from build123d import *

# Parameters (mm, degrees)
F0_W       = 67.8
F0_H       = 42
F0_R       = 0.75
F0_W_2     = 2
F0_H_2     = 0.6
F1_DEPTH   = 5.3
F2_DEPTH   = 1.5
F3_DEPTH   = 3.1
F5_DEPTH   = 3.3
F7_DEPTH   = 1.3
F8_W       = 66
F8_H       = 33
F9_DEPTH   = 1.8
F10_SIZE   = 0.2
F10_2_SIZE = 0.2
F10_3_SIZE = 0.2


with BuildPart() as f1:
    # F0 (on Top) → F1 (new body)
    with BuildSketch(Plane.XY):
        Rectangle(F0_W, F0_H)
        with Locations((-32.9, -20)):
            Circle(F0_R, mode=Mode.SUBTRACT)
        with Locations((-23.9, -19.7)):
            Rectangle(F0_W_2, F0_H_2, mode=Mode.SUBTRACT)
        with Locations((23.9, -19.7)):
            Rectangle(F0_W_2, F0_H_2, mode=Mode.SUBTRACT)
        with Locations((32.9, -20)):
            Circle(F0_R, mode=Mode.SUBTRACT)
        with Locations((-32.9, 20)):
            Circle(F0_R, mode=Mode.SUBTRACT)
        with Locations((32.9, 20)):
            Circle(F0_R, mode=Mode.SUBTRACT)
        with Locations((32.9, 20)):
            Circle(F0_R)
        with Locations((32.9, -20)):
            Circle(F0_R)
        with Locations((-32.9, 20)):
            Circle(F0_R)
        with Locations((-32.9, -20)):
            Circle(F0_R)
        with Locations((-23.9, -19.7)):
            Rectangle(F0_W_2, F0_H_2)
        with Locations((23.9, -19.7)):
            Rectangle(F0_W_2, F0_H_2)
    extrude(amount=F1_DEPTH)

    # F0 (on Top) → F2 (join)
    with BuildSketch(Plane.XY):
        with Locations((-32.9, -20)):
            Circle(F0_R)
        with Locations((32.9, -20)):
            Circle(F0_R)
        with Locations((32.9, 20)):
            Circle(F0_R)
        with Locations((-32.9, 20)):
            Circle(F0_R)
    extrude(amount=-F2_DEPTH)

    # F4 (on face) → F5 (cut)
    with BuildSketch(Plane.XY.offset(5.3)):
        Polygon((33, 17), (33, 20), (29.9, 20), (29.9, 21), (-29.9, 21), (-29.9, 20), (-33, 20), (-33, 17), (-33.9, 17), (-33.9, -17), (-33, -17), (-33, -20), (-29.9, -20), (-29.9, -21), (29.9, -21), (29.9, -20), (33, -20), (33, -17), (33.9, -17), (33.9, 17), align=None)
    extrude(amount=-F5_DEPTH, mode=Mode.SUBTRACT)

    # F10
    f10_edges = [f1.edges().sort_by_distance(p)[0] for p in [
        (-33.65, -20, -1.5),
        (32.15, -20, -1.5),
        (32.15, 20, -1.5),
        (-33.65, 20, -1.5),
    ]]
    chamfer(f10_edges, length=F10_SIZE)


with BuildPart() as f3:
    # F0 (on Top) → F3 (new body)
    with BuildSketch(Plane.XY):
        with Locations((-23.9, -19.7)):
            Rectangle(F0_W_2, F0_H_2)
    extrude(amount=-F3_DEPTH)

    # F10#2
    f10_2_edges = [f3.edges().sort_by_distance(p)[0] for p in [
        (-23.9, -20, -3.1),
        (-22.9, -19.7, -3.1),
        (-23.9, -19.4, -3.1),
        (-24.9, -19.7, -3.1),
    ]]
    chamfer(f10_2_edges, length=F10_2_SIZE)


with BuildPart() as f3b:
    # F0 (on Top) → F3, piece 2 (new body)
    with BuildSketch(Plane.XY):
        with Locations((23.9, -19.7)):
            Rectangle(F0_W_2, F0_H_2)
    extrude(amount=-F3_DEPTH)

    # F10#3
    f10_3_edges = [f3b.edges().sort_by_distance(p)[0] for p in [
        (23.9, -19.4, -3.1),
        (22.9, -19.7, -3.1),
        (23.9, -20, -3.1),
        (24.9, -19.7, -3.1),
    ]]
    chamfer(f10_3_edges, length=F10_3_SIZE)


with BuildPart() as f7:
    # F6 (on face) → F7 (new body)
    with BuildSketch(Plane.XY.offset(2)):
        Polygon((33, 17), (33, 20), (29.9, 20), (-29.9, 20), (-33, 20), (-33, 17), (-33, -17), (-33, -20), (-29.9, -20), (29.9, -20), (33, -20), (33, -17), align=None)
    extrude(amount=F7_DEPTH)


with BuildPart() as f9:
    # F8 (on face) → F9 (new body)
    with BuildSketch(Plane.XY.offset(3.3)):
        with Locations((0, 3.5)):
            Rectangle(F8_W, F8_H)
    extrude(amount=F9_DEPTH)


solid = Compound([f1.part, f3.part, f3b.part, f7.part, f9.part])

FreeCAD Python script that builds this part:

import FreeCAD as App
import Part
import Sketcher
Q = App.Units.Quantity


def edges_at(feature, points):
    """Names of the edges that pass closest to the given points."""
    edges = feature.Shape.Edges
    near = lambda p: min(range(len(edges)), key=lambda i: edges[i].distToShape(Part.Vertex(*p))[0])
    return sorted({f"Edge{near(p) + 1}" for p in points})


def add_polygon(sketch, points):
    """Adds a closed chain of lines whose ends are joined by coincident constraints."""
    first, n = sketch.GeometryCount, len(points)
    for a, b in zip(points, points[1:] + points[:1]):
        sketch.addGeometry(Part.LineSegment(App.Vector(*a, 0), App.Vector(*b, 0)), False)
    for i in range(n):
        sketch.addConstraint(Sketcher.Constraint("Coincident", first + i, 2, first + (i + 1) % n, 1))

doc = App.newDocument("Part")
body = doc.addObject("PartDesign::Body", "Body")

# Sketch on XY plane
sketch1 = body.newObject("Sketcher::SketchObject", "Sketch")
sketch1.AttachmentSupport = (doc.getObject("XY_Plane"), [""])
sketch1.MapMode = "FlatFace"
add_polygon(sketch1, [(-33.9, 21), (-33.9, -21), (33.9, -21), (33.9, 21)])  # lines 0-3
sketch1.addConstraint([
    Sketcher.Constraint("Vertical", 0),
    Sketcher.Constraint("Horizontal", 1),
    Sketcher.Constraint("Vertical", 2),
    Sketcher.Constraint("Horizontal", 3),
    Sketcher.Constraint("Symmetric", 0, 2, 2, 2, -1, 1),
    Sketcher.Constraint("DistanceY", 0, 2, 0, 1, Q("42 mm")),
    Sketcher.Constraint("DistanceX", 1, 1, 1, 2, Q("67.8 mm")),
])
pad1 = body.newObject("PartDesign::Pad", "Pad")
pad1.Profile = sketch1
pad1.Length = 5.3

# Sketch on XY plane
sketch2 = body.newObject("Sketcher::SketchObject", "Sketch001")
sketch2.AttachmentSupport = (doc.getObject("XY_Plane"), [""])
sketch2.MapMode = "FlatFace"
sketch2.addGeometry([
    Part.Circle(App.Vector(-32.9, -20, 0), App.Vector(0, 0, 1), 0.75),
    Part.Circle(App.Vector(32.9, -20, 0), App.Vector(0, 0, 1), 0.75),
    Part.Circle(App.Vector(32.9, 20, 0), App.Vector(0, 0, 1), 0.75),
    Part.Circle(App.Vector(-32.9, 20, 0), App.Vector(0, 0, 1), 0.75),
], False)
sketch2.addConstraint([
    Sketcher.Constraint("Equal", 0, 1),
    Sketcher.Constraint("Equal", 1, 2),
    Sketcher.Constraint("Equal", 2, 3),
    Sketcher.Constraint("Symmetric", 0, 3, 2, 3, -1, 1),
    Sketcher.Constraint("Symmetric", 1, 3, 3, 3, -1, 1),
    Sketcher.Constraint("Symmetric", 0, 3, 1, 3, -2),
    Sketcher.Constraint("Diameter", 0, Q("1.5 mm")),
    Sketcher.Constraint("DistanceY", 0, 3, -1, 1, Q("20 mm")),
    Sketcher.Constraint("DistanceX", 0, 3, -1, 1, Q("32.9 mm")),
])
pad2 = body.newObject("PartDesign::Pad", "Pad001")
pad2.Profile = sketch2
pad2.Length = 1.5
pad2.Reversed = True

# Sketch on XY plane
sketch3 = body.newObject("Sketcher::SketchObject", "Sketch002")
sketch3.AttachmentSupport = (doc.getObject("XY_Plane"), [""])
sketch3.MapMode = "FlatFace"
sketch3.AttachmentOffset = App.Placement(App.Vector(0, 0, 5.3), App.Rotation())
add_polygon(sketch3, [(33, 17), (33, 20), (29.9, 20), (29.9, 21), (-29.9, 21), (-29.9, 20), (-33, 20), (-33, 17), (-33.9, 17), (-33.9, -17), (-33, -17), (-33, -20), (-29.9, -20), (-29.9, -21), (29.9, -21), (29.9, -20), (33, -20), (33, -17), (33.9, -17), (33.9, 17)])  # lines 0-19
sketch3.addConstraint([
    Sketcher.Constraint("Vertical", 0),
    Sketcher.Constraint("Horizontal", 1),
    Sketcher.Constraint("Vertical", 2),
    Sketcher.Constraint("Horizontal", 3),
    Sketcher.Constraint("Vertical", 4),
    Sketcher.Constraint("Horizontal", 5),
    Sketcher.Constraint("Vertical", 6),
    Sketcher.Constraint("Horizontal", 7),
    Sketcher.Constraint("Vertical", 8),
    Sketcher.Constraint("Horizontal", 9),
    Sketcher.Constraint("Vertical", 10),
    Sketcher.Constraint("Horizontal", 11),
    Sketcher.Constraint("Vertical", 12),
    Sketcher.Constraint("Horizontal", 13),
    Sketcher.Constraint("Vertical", 14),
    Sketcher.Constraint("Horizontal", 15),
    Sketcher.Constraint("Vertical", 16),
    Sketcher.Constraint("Horizontal", 17),
    Sketcher.Constraint("Vertical", 18),
    Sketcher.Constraint("Horizontal", 19),
    Sketcher.Constraint("Symmetric", 0, 2, 10, 2, -1, 1),
    Sketcher.Constraint("Symmetric", 2, 2, 12, 2, -1, 1),
    Sketcher.Constraint("Symmetric", 4, 2, 14, 2, -1, 1),
    Sketcher.Constraint("Symmetric", 6, 2, 16, 2, -1, 1),
    Sketcher.Constraint("Symmetric", 8, 2, 18, 2, -1, 1),
    Sketcher.Constraint("Symmetric", 1, 2, 4, 2, -2),
    Sketcher.Constraint("Symmetric", 9, 2, 16, 2, -2),
    Sketcher.Constraint("DistanceY", 0, 1, 0, 2, Q("3 mm")),
    Sketcher.Constraint("DistanceY", 2, 1, 2, 2, Q("1 mm")),
    Sketcher.Constraint("DistanceY", 8, 2, 8, 1, Q("34 mm")),
    Sketcher.Constraint("DistanceX", 1, 2, 1, 1, Q("3.1 mm")),
    Sketcher.Constraint("DistanceX", 3, 2, 3, 1, Q("59.8 mm")),
    Sketcher.Constraint("DistanceX", 7, 2, 7, 1, Q("0.9 mm")),
])
pocket1 = body.newObject("PartDesign::Pocket", "Pocket")
pocket1.Profile = sketch3
pocket1.Length = 3.3
doc.recompute()

chamfer = body.newObject("PartDesign::Chamfer", "Chamfer")
chamfer.Base = (pocket1, edges_at(pocket1, [
    (-33.65, -20, -1.5),
    (32.15, -20, -1.5),
    (32.15, 20, -1.5),
    (-33.65, 20, -1.5),
]))
chamfer.Size = 0.2
body2 = doc.addObject("PartDesign::Body", "Body001")

# Sketch on XY plane
sketch4 = body2.newObject("Sketcher::SketchObject", "Sketch003")
sketch4.AttachmentSupport = (doc.getObject("XY_Plane001"), [""])
sketch4.MapMode = "FlatFace"
add_polygon(sketch4, [(-24.9, -19.4), (-24.9, -20), (-22.9, -20), (-22.9, -19.4)])  # lines 0-3
sketch4.addConstraint([
    Sketcher.Constraint("Vertical", 0),
    Sketcher.Constraint("Horizontal", 1),
    Sketcher.Constraint("Vertical", 2),
    Sketcher.Constraint("Horizontal", 3),
    Sketcher.Constraint("DistanceX", 1, 1, 1, 2, Q("2 mm")),
    Sketcher.Constraint("DistanceY", 0, 2, 0, 1, Q("0.6 mm")),
    Sketcher.Constraint("DistanceY", 0, 2, -1, 1, Q("20 mm")),
    Sketcher.Constraint("DistanceX", 0, 2, -1, 1, Q("24.9 mm")),
])
pad3 = body2.newObject("PartDesign::Pad", "Pad002")
pad3.Profile = sketch4
pad3.Length = 3.1
pad3.Reversed = True
doc.recompute()

chamfer2 = body2.newObject("PartDesign::Chamfer", "Chamfer001")
chamfer2.Base = (pad3, edges_at(pad3, [
    (-23.9, -20, -3.1),
    (-22.9, -19.7, -3.1),
    (-23.9, -19.4, -3.1),
    (-24.9, -19.7, -3.1),
]))
chamfer2.Size = 0.2
body3 = doc.addObject("PartDesign::Body", "Body002")

# Sketch on XY plane
sketch5 = body3.newObject("Sketcher::SketchObject", "Sketch004")
sketch5.AttachmentSupport = (doc.getObject("XY_Plane002"), [""])
sketch5.MapMode = "FlatFace"
add_polygon(sketch5, [(22.9, -19.4), (22.9, -20), (24.9, -20), (24.9, -19.4)])  # lines 0-3
sketch5.addConstraint([
    Sketcher.Constraint("Vertical", 0),
    Sketcher.Constraint("Horizontal", 1),
    Sketcher.Constraint("Vertical", 2),
    Sketcher.Constraint("Horizontal", 3),
    Sketcher.Constraint("DistanceX", 1, 1, 1, 2, Q("2 mm")),
    Sketcher.Constraint("DistanceY", 0, 2, 0, 1, Q("0.6 mm")),
    Sketcher.Constraint("DistanceY", 0, 2, -1, 1, Q("20 mm")),
    Sketcher.Constraint("DistanceX", -1, 1, 0, 2, Q("22.9 mm")),
])
pad4 = body3.newObject("PartDesign::Pad", "Pad003")
pad4.Profile = sketch5
pad4.Length = 3.1
pad4.Reversed = True
doc.recompute()

chamfer3 = body3.newObject("PartDesign::Chamfer", "Chamfer002")
chamfer3.Base = (pad4, edges_at(pad4, [
    (23.9, -19.4, -3.1),
    (22.9, -19.7, -3.1),
    (23.9, -20, -3.1),
    (24.9, -19.7, -3.1),
]))
chamfer3.Size = 0.2
body4 = doc.addObject("PartDesign::Body", "Body003")

# Sketch on XY plane
sketch6 = body4.newObject("Sketcher::SketchObject", "Sketch005")
sketch6.AttachmentSupport = (doc.getObject("XY_Plane003"), [""])
sketch6.MapMode = "FlatFace"
sketch6.AttachmentOffset = App.Placement(App.Vector(0, 0, 2), App.Rotation())
add_polygon(sketch6, [(33, 20), (-33, 20), (-33, -20), (33, -20)])  # lines 0-3
sketch6.addConstraint([
    Sketcher.Constraint("Horizontal", 0),
    Sketcher.Constraint("Vertical", 1),
    Sketcher.Constraint("Horizontal", 2),
    Sketcher.Constraint("Vertical", 3),
    Sketcher.Constraint("Symmetric", 0, 2, 2, 2, -1, 1),
    Sketcher.Constraint("DistanceX", 0, 2, 0, 1, Q("66 mm")),
    Sketcher.Constraint("DistanceY", 1, 2, 1, 1, Q("40 mm")),
])
pad5 = body4.newObject("PartDesign::Pad", "Pad004")
pad5.Profile = sketch6
pad5.Length = 1.3
body5 = doc.addObject("PartDesign::Body", "Body004")

# Sketch on XY plane
sketch7 = body5.newObject("Sketcher::SketchObject", "Sketch006")
sketch7.AttachmentSupport = (doc.getObject("XY_Plane004"), [""])
sketch7.MapMode = "FlatFace"
sketch7.AttachmentOffset = App.Placement(App.Vector(0, 0, 3.3), App.Rotation())
add_polygon(sketch7, [(-33, 20), (-33, -13), (33, -13), (33, 20)])  # lines 0-3
sketch7.addConstraint([
    Sketcher.Constraint("Vertical", 0),
    Sketcher.Constraint("Horizontal", 1),
    Sketcher.Constraint("Vertical", 2),
    Sketcher.Constraint("Horizontal", 3),
    Sketcher.Constraint("DistanceX", 1, 1, 1, 2, Q("66 mm")),
    Sketcher.Constraint("DistanceY", 0, 2, 0, 1, Q("33 mm")),
    Sketcher.Constraint("DistanceX", 0, 2, -1, 1, Q("33 mm")),
    Sketcher.Constraint("DistanceY", 0, 2, -1, 1, Q("13 mm")),
])
pad6 = body5.newObject("PartDesign::Pad", "Pad005")
pad6.Profile = sketch7
pad6.Length = 1.8

doc.recompute()
